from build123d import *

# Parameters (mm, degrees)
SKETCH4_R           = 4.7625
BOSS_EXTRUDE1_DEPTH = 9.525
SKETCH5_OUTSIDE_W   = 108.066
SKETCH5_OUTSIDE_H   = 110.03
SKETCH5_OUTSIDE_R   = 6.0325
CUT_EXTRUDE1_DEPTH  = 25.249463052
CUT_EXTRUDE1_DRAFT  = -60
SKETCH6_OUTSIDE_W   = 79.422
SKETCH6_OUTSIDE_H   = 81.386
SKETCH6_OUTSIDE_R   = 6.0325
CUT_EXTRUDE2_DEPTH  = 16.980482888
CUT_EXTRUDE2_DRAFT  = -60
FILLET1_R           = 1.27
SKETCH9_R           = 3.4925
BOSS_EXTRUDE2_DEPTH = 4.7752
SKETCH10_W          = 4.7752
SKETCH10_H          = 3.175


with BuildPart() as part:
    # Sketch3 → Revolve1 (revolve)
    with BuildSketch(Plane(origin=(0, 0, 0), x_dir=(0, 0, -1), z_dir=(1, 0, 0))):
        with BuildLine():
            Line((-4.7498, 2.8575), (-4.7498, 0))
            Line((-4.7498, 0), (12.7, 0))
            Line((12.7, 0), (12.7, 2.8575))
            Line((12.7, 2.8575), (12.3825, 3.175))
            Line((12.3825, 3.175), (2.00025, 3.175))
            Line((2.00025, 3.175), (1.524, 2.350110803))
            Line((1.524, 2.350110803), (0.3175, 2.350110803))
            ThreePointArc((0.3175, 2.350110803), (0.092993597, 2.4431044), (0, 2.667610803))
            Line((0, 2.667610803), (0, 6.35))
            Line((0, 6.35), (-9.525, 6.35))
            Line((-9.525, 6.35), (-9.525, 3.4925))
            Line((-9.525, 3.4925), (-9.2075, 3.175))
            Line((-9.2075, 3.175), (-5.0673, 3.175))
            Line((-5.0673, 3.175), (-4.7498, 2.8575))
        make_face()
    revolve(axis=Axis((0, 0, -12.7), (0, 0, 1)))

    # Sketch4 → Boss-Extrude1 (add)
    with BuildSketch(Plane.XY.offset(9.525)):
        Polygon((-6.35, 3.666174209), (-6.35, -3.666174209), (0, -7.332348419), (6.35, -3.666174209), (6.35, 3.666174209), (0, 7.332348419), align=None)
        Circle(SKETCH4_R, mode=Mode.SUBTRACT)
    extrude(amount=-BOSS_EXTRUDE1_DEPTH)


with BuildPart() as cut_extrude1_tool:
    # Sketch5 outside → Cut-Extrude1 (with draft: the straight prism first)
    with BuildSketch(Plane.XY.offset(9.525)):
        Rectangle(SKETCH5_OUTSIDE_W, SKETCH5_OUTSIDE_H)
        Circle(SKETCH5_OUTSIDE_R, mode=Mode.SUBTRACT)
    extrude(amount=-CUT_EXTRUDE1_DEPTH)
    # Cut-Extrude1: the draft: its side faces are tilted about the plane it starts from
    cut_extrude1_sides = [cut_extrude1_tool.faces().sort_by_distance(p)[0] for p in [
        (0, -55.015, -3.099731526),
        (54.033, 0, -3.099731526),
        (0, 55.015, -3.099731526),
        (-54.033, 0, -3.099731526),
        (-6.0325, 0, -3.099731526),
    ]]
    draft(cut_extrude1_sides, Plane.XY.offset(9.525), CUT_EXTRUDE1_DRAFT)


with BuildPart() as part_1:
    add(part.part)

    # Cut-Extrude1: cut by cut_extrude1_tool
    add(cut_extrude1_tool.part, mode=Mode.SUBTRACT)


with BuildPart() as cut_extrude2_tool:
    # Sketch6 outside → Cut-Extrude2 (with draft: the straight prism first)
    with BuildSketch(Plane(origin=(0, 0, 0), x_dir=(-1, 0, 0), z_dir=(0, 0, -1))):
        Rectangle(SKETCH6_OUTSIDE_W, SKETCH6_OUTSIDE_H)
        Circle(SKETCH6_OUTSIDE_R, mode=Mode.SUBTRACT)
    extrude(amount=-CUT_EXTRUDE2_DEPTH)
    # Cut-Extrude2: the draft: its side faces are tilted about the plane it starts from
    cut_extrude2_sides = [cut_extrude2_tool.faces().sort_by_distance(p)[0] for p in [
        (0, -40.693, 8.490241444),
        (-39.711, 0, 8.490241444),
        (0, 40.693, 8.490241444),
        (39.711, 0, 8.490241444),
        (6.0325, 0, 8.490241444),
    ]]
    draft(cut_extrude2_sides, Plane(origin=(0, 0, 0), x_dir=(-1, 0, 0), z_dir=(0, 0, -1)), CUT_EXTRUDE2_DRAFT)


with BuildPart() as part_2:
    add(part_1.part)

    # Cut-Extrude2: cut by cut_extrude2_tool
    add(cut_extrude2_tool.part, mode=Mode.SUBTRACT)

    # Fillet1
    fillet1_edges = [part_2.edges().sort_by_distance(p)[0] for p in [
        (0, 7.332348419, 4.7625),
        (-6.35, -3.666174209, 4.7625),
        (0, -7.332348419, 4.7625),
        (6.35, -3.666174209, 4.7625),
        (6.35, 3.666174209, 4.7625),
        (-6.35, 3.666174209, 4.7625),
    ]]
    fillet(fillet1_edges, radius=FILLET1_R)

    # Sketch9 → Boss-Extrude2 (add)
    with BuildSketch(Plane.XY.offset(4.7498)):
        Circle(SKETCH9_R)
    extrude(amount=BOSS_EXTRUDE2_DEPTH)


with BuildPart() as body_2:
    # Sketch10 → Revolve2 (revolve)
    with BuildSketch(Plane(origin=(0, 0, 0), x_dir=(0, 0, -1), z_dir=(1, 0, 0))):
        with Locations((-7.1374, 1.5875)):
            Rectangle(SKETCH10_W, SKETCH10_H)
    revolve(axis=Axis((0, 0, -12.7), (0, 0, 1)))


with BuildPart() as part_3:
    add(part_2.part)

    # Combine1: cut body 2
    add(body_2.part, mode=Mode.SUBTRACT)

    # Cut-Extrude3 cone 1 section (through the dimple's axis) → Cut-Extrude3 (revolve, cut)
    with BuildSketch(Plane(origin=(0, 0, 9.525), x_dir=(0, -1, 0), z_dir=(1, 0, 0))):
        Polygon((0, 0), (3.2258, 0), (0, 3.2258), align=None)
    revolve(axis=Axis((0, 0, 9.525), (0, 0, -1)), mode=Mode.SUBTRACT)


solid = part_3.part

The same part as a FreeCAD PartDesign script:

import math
import FreeCAD as App
import Part
import Sketcher

V = App.Vector
Q = App.Units.Quantity


def edges_at(feature, points):
    """Names of the edges that pass closest to the given points."""
    edges = feature.Shape.Edges
    near = lambda p: min(range(len(edges)), key=lambda i: edges[i].distToShape(Part.Vertex(*p))[0])
    return sorted({f"Edge{near(p) + 1}" for p in points})


def faces_at(feature, points):
    """Names of the faces that lie closest to the given points."""
    faces = feature.Shape.Faces
    near = lambda p: min(range(len(faces)), key=lambda i: faces[i].distToShape(Part.Vertex(*p))[0])
    return sorted({f"Face{near(p) + 1}" for p in points})


def add_polygon(sketch, points):
    """Adds a closed chain of lines whose ends are joined by coincident constraints."""
    first, n = sketch.GeometryCount, len(points)
    for a, b in zip(points, points[1:] + points[:1]):
        sketch.addGeometry(Part.LineSegment(App.Vector(*a, 0), App.Vector(*b, 0)), False)
    for i in range(n):
        sketch.addConstraint(Sketcher.Constraint("Coincident", first + i, 2, first + (i + 1) % n, 1))

doc = App.newDocument("Part")
body = doc.addObject("PartDesign::Body", "Body")

# Sketch on YZ plane
sketch1 = body.newObject("Sketcher::SketchObject", "Sketch")
sketch1.AttachmentSupport = (doc.getObject("YZ_Plane"), [""])
sketch1.MapMode = "FlatFace"
sketch1.addGeometry([
    Part.LineSegment(V(2.86, 4.75, 0), V(0, 4.75, 0)),  # 0
    Part.LineSegment(V(0, 4.75, 0), V(0, -12.7, 0)),  # 1
    Part.LineSegment(V(0, -12.7, 0), V(2.86, -12.7, 0)),  # 2
    Part.LineSegment(V(2.86, -12.7, 0), V(3.17, -12.38, 0)),  # 3
    Part.LineSegment(V(3.17, -12.38, 0), V(3.17, -2, 0)),  # 4
    Part.LineSegment(V(3.17, -2, 0), V(2.35, -1.52, 0)),  # 5
    Part.LineSegment(V(2.35, -1.52, 0), V(2.35, -0.32, 0)),  # 6
    Part.ArcOfCircle(Part.Circle(V(2.67, -0.32, 0), V(0, 0, 1), 0.32), math.radians(90), math.radians(180)),  # 7
    Part.LineSegment(V(2.67, 0, 0), V(6.35, 0, 0)),  # 8
    Part.LineSegment(V(6.35, 0, 0), V(6.35, 9.53, 0)),  # 9
    Part.LineSegment(V(6.35, 9.53, 0), V(3.49, 9.53, 0)),  # 10
    Part.LineSegment(V(3.49, 9.53, 0), V(3.17, 9.21, 0)),  # 11
    Part.LineSegment(V(3.17, 9.21, 0), V(3.17, 5.07, 0)),  # 12
    Part.LineSegment(V(3.17, 5.07, 0), V(2.86, 4.75, 0)),  # 13
], False)
sketch1.addConstraint([
    Sketcher.Constraint("Coincident", 0, 2, 1, 1),
    Sketcher.Constraint("Coincident", 1, 2, 2, 1),
    Sketcher.Constraint("Coincident", 2, 2, 3, 1),
    Sketcher.Constraint("Coincident", 3, 2, 4, 1),
    Sketcher.Constraint("Coincident", 4, 2, 5, 1),
    Sketcher.Constraint("Coincident", 5, 2, 6, 1),
    Sketcher.Constraint("Tangent", 6, 2, 7, 2),
    Sketcher.Constraint("Tangent", 7, 1, 8, 1),
    Sketcher.Constraint("Coincident", 8, 2, 9, 1),
    Sketcher.Constraint("Coincident", 9, 2, 10, 1),
    Sketcher.Constraint("Coincident", 10, 2, 11, 1),
    Sketcher.Constraint("Coincident", 11, 2, 12, 1),
    Sketcher.Constraint("Coincident", 12, 2, 13, 1),
    Sketcher.Constraint("Coincident", 13, 2, 0, 1),
    Sketcher.Constraint("Horizontal", 0),
    Sketcher.Constraint("Vertical", 1),
    Sketcher.Constraint("Horizontal", 2),
    Sketcher.Constraint("Vertical", 4),
    Sketcher.Constraint("Vertical", 6),
    Sketcher.Constraint("Horizontal", 8),
    Sketcher.Constraint("Vertical", 9),
    Sketcher.Constraint("Horizontal", 10),
    Sketcher.Constraint("Vertical", 12),
    Sketcher.Constraint("PointOnObject", 0, 2, -2),
    Sketcher.Constraint("PointOnObject", 7, 1, -1),
    Sketcher.Constraint("Parallel", 3, 11),
    Sketcher.Constraint("Parallel", 11, 13),
    Sketcher.Constraint("Vertical", 4, 2, 11, 2),
    Sketcher.Constraint("Vertical", 2, 2, 13, 2),
    Sketcher.Constraint("Equal", 2, 10),
    Sketcher.Constraint("Equal", 3, 11),
    Sketcher.Constraint("Angle", 3, Q("45 deg")),
    Sketcher.Constraint("Angle", 5, Q("150 deg")),
    Sketcher.Constraint("DistanceY", 1, 2, -1, 1, Q("0.5 in")),
    Sketcher.Constraint("Radius", 7, Q("0.0125 in")),
    Sketcher.Constraint("DistanceY", 1, 2, 1, 1, Q("0.687 in")),
    Sketcher.Constraint("DistanceY", 9, 1, 9, 2, Q("0.375 in")),
    Sketcher.Constraint("DistanceY", 12, 2, 12, 1, Q("0.163 in")),
    Sketcher.Constraint("DistanceY", 5, 2, -1, 1, Q("0.06 in")),
    Sketcher.Constraint("DistanceX", -1, 1, 8, 2, Q("0.25 in")),
    Sketcher.Constraint("Distance", 5, Q("0.0375 in")),
])
revolution = body.newObject("PartDesign::Revolution", "Revolution")
revolution.Profile = sketch1
revolution.ReferenceAxis = (sketch1, ["V_Axis"])
revolution.Angle = 360

# Sketch on XY plane
sketch2 = body.newObject("Sketcher::SketchObject", "Sketch001")
sketch2.AttachmentSupport = (doc.getObject("XY_Plane"), [""])
sketch2.MapMode = "FlatFace"
sketch2.AttachmentOffset = App.Placement(V(0, 0, 0.375 * 25.4), App.Rotation())
add_polygon(sketch2, [(-6.3, 3.7), (-6.3, -3.7), (0, -7.3), (6.3, -3.7), (6.3, 3.7), (0, 7.3)])  # lines 0-5
sketch2.addGeometry(Part.Circle(V(0, 0, 0), V(0, 0, 1), 4.8), False)  # 6
sketch2.addConstraint([
    Sketcher.Constraint("Vertical", 0),
    Sketcher.Constraint("Vertical", 3),
    Sketcher.Constraint("Coincident", 6, 3, -1, 1),
    Sketcher.Constraint("Symmetric", 0, 2, 3, 2, -1, 1),
    Sketcher.Constraint("Symmetric", 1, 2, 4, 2, -1, 1),
    Sketcher.Constraint("PointOnObject", 1, 2, -2),
    Sketcher.Constraint("Parallel", 2, 5),
    Sketcher.Constraint("Horizontal", 0, 2, 2, 2),
    Sketcher.Constraint("Diameter", 6, Q("0.375 in")),
    Sketcher.Constraint("Angle", 1, Q("-30 deg")),
    Sketcher.Constraint("DistanceX", 0, 2, 2, 2, Q("0.5 in")),
    Sketcher.Constraint("DistanceY", 0, 2, 0, 1, 7.332348),
])
pad1 = body.newObject("PartDesign::Pad", "Pad")
pad1.Profile = sketch2
pad1.Length = Q("0.375 in")
pad1.Reversed = True
body2 = doc.addObject("PartDesign::Body", "Body001")

# Sketch on XY plane
sketch3 = body2.newObject("Sketcher::SketchObject", "Sketch002")
sketch3.AttachmentSupport = (doc.getObject("XY_Plane001"), [""])
sketch3.MapMode = "FlatFace"
sketch3.AttachmentOffset = App.Placement(V(0, 0, 0.375 * 25.4), App.Rotation())
add_polygon(sketch3, [(-54, 55), (-54, -55), (54, -55), (54, 55)])  # lines 0-3
sketch3.addGeometry(Part.Circle(V(0, 0, 0), V(0, 0, 1), 6), False)  # 4
sketch3.addConstraint([
    Sketcher.Constraint("Vertical", 0),
    Sketcher.Constraint("Horizontal", 1),
    Sketcher.Constraint("Vertical", 2),
    Sketcher.Constraint("Horizontal", 3),
    Sketcher.Constraint("Coincident", 4, 3, -1, 1),
    Sketcher.Constraint("Symmetric", 0, 2, 2, 2, -1, 1),
    Sketcher.Constraint("Diameter", 4, Q("0.475 in")),
    Sketcher.Constraint("DistanceX", 1, 1, 1, 2, 108.066),
    Sketcher.Constraint("DistanceY", 0, 2, 0, 1, 110.03),
])
pad2 = body2.newObject("PartDesign::Pad", "Pad001")
pad2.Profile = sketch3
pad2.Length = 25.249463
pad2.Reversed = True
doc.recompute()

datumplane = body2.newObject("PartDesign::Plane", "DatumPlane")
datumplane.AttachmentSupport = (doc.getObject("XY_Plane001"), [""])
datumplane.MapMode = "FlatFace"
datumplane.AttachmentOffset = App.Placement(V(0, 0, 0.375 * 25.4), App.Rotation())
draft = body2.newObject("PartDesign::Draft", "Draft")
draft.Base = (pad2, faces_at(pad2, [
    (0, -55.015, -3.1),
    (54.033, 0, -3.1),
    (0, 55.015, -3.1),
    (-54.033, 0, -3.1),
    (-6.032, 0, -3.1),
]))
draft.NeutralPlane = (datumplane, [""])
draft.Angle = 60
draft.Reversed = True
doc.recompute()

boolean = body.newObject("PartDesign::Boolean", "Boolean")
boolean.Type = "Cut"
boolean.addObjects([body2])
body3 = doc.addObject("PartDesign::Body", "Body002")

# Sketch on XY plane
sketch4 = body3.newObject("Sketcher::SketchObject", "Sketch003")
sketch4.AttachmentSupport = (doc.getObject("XY_Plane002"), [""])
sketch4.MapMode = "FlatFace"
add_polygon(sketch4, [(40, 41), (40, -41), (-40, -41), (-40, 41)])  # lines 0-3
sketch4.addGeometry(Part.Circle(V(0, 0, 0), V(0, 0, 1), 6), False)  # 4
sketch4.addConstraint([
    Sketcher.Constraint("Vertical", 0),
    Sketcher.Constraint("Horizontal", 1),
    Sketcher.Constraint("Vertical", 2),
    Sketcher.Constraint("Horizontal", 3),
    Sketcher.Constraint("Coincident", 4, 3, -1, 1),
    Sketcher.Constraint("Symmetric", 0, 2, 2, 2, -1, 1),
    Sketcher.Constraint("Diameter", 4, Q("0.475 in")),
    Sketcher.Constraint("DistanceX", 1, 2, 1, 1, 79.422),
    Sketcher.Constraint("DistanceY", 0, 2, 0, 1, 81.386),
])
pad3 = body3.newObject("PartDesign::Pad", "Pad002")
pad3.Profile = sketch4
pad3.Length = 16.980483
doc.recompute()

draft2 = body3.newObject("PartDesign::Draft", "Draft001")
draft2.Base = (pad3, faces_at(pad3, [
    (0, -40.693, 8.49),
    (-39.711, 0, 8.49),
    (0, 40.693, 8.49),
    (39.711, 0, 8.49),
    (6.032, 0, 8.49),
]))
draft2.NeutralPlane = (doc.getObject("XY_Plane002"), [""])
draft2.Angle = 60
draft2.Reversed = False
doc.recompute()

boolean2 = body.newObject("PartDesign::Boolean", "Boolean001")
boolean2.Type = "Cut"
boolean2.addObjects([body3])
doc.recompute()

fillet = body.newObject("PartDesign::Fillet", "Fillet")
fillet.Base = (boolean2, edges_at(boolean2, [
    (0, 7.332, 4.763),
    (-6.35, -3.666, 4.763),
    (0, -7.332, 4.763),
    (6.35, -3.666, 4.763),
    (6.35, 3.666, 4.763),
    (-6.35, 3.666, 4.763),
]))
fillet.Radius = Q("0.05 in")

# Sketch on XY plane
sketch5 = body.newObject("Sketcher::SketchObject", "Sketch004")
sketch5.AttachmentSupport = (doc.getObject("XY_Plane"), [""])
sketch5.MapMode = "FlatFace"
sketch5.AttachmentOffset = App.Placement(V(0, 0, 0.187 * 25.4), App.Rotation())
sketch5.addGeometry(Part.Circle(V(0, 0, 0), V(0, 0, 1), 3.5), False)
sketch5.addConstraint([
    Sketcher.Constraint("Coincident", 0, 3, -1, 1),
    Sketcher.Constraint("Diameter", 0, Q("0.275 in")),
])
pad4 = body.newObject("PartDesign::Pad", "Pad003")
pad4.Profile = sketch5
pad4.Length = Q("0.188 in")
body4 = doc.addObject("PartDesign::Body", "Body003")

# Sketch on YZ plane
sketch6 = body4.newObject("Sketcher::SketchObject", "Sketch005")
sketch6.AttachmentSupport = (doc.getObject("YZ_Plane003"), [""])
sketch6.MapMode = "FlatFace"
add_polygon(sketch6, [(3.2, 9.5), (0, 9.5), (0, 4.7), (3.2, 4.7)])  # lines 0-3
sketch6.addConstraint([
    Sketcher.Constraint("Horizontal", 0),
    Sketcher.Constraint("Vertical", 1),
    Sketcher.Constraint("Horizontal", 2),
    Sketcher.Constraint("Vertical", 3),
    Sketcher.Constraint("PointOnObject", 0, 2, -2),
    Sketcher.Constraint("DistanceX", 0, 2, 0, 1, Q("0.125 in")),
    Sketcher.Constraint("DistanceY", 1, 2, 1, 1, Q("0.188 in")),
    Sketcher.Constraint("DistanceY", -1, 1, 0, 2, Q("0.375 in")),
])
revolution2 = body4.newObject("PartDesign::Revolution", "Revolution001")
revolution2.Profile = sketch6
revolution2.ReferenceAxis = (sketch6, ["V_Axis"])
revolution2.Angle = 360
doc.recompute()

boolean3 = body.newObject("PartDesign::Boolean", "Boolean002")
boolean3.Type = "Cut"
boolean3.addObjects([body4])

# Sketch on YZ plane
sketch7 = body.newObject("Sketcher::SketchObject", "Sketch006")
sketch7.AttachmentSupport = (doc.getObject("YZ_Plane"), [""])
sketch7.MapMode = "FlatFace"
add_polygon(sketch7, [(0, 9.5), (-3.2, 9.5), (0, 6.3)])  # lines 0-2
sketch7.addConstraint([
    Sketcher.Constraint("Horizontal", 0),
    Sketcher.Constraint("Vertical", 2),
    Sketcher.Constraint("PointOnObject", 1, 2, -2),
    Sketcher.Constraint("Equal", 0, 2),
    Sketcher.Constraint("DistanceX", 0, 2, 0, 1, Q("0.127 in")),
    Sketcher.Constraint("DistanceY", -1, 1, 0, 2, Q("0.375 in")),
])
groove = body.newObject("PartDesign::Groove", "Groove")
groove.Profile = sketch7
groove.ReferenceAxis = (sketch7, ["V_Axis"])
groove.Angle = 360

doc.recompute()
